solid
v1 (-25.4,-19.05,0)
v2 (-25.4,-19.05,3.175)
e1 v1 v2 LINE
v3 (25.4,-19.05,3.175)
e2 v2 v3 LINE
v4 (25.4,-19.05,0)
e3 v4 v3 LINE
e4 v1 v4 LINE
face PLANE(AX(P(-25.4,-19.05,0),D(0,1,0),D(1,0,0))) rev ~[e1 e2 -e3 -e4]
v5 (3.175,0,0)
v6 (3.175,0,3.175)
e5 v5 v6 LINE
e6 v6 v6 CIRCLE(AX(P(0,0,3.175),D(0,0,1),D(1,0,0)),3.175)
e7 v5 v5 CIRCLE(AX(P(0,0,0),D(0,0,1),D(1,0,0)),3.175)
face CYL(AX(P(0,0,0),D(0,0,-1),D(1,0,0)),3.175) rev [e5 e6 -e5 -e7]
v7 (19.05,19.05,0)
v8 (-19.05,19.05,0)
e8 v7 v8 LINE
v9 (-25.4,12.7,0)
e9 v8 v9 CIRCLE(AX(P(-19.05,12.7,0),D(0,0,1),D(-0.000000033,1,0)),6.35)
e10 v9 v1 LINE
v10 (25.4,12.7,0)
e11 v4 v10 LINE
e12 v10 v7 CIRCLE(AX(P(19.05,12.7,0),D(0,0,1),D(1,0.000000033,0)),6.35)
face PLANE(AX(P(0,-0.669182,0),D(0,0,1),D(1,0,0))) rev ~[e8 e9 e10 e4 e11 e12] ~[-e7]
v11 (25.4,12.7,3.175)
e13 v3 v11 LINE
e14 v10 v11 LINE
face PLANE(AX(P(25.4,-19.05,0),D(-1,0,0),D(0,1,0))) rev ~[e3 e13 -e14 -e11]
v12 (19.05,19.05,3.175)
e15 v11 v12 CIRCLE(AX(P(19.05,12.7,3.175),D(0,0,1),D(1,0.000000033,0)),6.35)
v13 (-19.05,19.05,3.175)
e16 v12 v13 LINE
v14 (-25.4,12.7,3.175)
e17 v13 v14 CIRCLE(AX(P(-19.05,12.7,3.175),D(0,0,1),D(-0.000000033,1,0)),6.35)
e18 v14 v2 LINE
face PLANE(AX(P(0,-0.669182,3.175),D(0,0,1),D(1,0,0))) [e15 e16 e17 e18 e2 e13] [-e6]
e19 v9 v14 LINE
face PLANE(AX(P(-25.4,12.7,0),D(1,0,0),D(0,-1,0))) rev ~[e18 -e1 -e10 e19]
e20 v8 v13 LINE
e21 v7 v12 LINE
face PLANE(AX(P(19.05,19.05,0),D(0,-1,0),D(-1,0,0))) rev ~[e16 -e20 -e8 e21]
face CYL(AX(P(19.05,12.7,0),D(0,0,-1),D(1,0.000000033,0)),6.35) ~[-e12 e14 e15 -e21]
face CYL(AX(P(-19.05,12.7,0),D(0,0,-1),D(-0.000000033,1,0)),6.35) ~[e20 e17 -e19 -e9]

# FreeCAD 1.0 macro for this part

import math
import FreeCAD as App
import Part
import Sketcher
from FreeCAD import Vector
Q = App.Units.Quantity

doc = App.newDocument("Part")
body = doc.addObject("PartDesign::Body", "Body")

# Sketch on XY plane
sketch1 = body.newObject("Sketcher::SketchObject", "Sketch")
sketch1.AttachmentSupport = (doc.getObject("XY_Plane"), [""])
sketch1.MapMode = "FlatFace"
sketch1.addGeometry([
    Part.ArcOfCircle(Part.Circle(Vector(19.05, 12.7, 0), Vector(0, 0, 1), 6.35), math.radians(0.000002), math.radians(89.999998)),  # 0
    Part.LineSegment(Vector(19.05, 19.05, 0), Vector(-19.05, 19.05, 0)),  # 1
    Part.ArcOfCircle(Part.Circle(Vector(-19.05, 12.7, 0), Vector(0, 0, 1), 6.35), math.radians(90.000002), math.radians(179.999998)),  # 2
    Part.LineSegment(Vector(-25.4, 12.7, 0), Vector(-25.4, -19.05, 0)),  # 3
    Part.LineSegment(Vector(-25.4, -19.05, 0), Vector(25.4, -19.05, 0)),  # 4
    Part.LineSegment(Vector(25.4, -19.05, 0), Vector(25.4, 12.7, 0)),  # 5
    Part.Circle(Vector(0, 0, 0), Vector(0, 0, 1), 3.175),  # 6
], False)
sketch1.addConstraint([
    Sketcher.Constraint("Tangent", 0, 2, 1, 1),
    Sketcher.Constraint("Tangent", 1, 2, 2, 1),
    Sketcher.Constraint("Tangent", 2, 2, 3, 1),
    Sketcher.Constraint("Coincident", 3, 2, 4, 1),
    Sketcher.Constraint("Coincident", 4, 2, 5, 1),
    Sketcher.Constraint("Tangent", 5, 2, 0, 1),
    Sketcher.Constraint("Horizontal", 1),
    Sketcher.Constraint("Vertical", 3),
    Sketcher.Constraint("Horizontal", 4),
    Sketcher.Constraint("Vertical", 5),
    Sketcher.Constraint("Coincident", 6, 3, -1, 1),
    Sketcher.Constraint("Equal", 0, 2),
    Sketcher.Constraint("Diameter", 6, Q("0.25 in")),
    Sketcher.Constraint("DistanceX", 4, 1, 4, 2, Q("2 in")),
    Sketcher.Constraint("Radius", 0, Q("0.25 in")),
    Sketcher.Constraint("DistanceX", 2, 2, -1, 1, Q("1 in")),
    Sketcher.Constraint("DistanceY", 3, 2, 3, 1, Q("1.25 in")),
    Sketcher.Constraint("DistanceY", -1, 1, 0, 3, Q("0.5 in")),
])
pad1 = body.newObject("PartDesign::Pad", "Pad")
pad1.Profile = sketch1
pad1.Length = Q("0.125 in")

doc.recompute()
